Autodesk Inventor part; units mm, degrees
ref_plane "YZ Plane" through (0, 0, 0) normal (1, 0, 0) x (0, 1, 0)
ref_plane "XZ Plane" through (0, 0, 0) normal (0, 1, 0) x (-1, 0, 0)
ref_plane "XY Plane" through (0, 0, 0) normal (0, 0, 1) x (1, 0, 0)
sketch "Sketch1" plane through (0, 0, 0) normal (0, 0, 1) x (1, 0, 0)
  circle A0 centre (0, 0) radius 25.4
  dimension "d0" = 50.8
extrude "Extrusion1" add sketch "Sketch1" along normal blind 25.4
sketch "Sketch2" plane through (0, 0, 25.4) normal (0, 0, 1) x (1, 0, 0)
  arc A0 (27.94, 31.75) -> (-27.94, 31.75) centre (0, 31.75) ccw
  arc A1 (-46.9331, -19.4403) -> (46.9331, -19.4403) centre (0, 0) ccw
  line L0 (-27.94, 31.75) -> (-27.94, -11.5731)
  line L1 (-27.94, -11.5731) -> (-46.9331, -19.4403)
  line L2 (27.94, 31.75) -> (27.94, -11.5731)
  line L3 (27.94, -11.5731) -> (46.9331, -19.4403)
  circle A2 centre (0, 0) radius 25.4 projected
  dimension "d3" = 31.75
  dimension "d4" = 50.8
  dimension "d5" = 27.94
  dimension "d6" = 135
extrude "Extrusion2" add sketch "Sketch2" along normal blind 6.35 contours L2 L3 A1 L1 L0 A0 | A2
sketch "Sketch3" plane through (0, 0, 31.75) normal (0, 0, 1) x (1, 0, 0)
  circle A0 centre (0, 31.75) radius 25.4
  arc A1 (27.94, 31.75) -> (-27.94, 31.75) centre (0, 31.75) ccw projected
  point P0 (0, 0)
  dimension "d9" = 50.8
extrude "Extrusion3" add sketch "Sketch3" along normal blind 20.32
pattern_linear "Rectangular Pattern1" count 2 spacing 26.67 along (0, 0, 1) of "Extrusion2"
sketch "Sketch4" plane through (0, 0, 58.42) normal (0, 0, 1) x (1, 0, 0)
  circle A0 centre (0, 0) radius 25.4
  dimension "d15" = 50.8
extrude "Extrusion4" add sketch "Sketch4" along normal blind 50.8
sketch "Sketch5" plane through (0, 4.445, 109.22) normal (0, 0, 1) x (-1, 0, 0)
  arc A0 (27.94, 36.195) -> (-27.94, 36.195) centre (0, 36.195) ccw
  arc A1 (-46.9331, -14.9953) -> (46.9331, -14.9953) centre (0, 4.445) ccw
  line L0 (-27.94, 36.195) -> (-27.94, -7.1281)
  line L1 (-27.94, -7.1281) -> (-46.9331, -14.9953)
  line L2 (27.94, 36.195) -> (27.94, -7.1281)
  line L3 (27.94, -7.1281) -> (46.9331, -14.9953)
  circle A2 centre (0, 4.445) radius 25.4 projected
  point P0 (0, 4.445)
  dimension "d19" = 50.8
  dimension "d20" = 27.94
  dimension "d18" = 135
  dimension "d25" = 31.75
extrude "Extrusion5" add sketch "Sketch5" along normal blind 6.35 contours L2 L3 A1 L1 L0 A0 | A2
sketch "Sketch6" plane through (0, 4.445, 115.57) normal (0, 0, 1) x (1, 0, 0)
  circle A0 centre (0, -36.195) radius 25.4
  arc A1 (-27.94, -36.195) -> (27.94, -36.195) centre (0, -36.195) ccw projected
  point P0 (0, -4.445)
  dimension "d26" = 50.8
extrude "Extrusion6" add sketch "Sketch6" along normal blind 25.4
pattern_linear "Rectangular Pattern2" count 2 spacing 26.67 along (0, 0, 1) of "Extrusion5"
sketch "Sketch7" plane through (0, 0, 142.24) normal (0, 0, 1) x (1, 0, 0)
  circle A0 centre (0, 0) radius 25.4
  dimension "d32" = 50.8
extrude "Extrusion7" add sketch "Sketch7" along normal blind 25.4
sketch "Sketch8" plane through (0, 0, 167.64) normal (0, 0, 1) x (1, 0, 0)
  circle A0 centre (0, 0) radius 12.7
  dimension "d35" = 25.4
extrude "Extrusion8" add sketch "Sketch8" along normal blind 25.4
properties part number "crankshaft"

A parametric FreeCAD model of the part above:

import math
import FreeCAD as App
import Part
import Sketcher

V = App.Vector
Q = App.Units.Quantity

doc = App.newDocument("Part")
body = doc.addObject("PartDesign::Body", "Body")

sketch1 = body.newObject("Sketcher::SketchObject", "Sketch")
sketch1.AttachmentSupport = (doc.getObject("XY_Plane"), [""])
sketch1.MapMode = "FlatFace"
sketch1.addGeometry(Part.Circle(V(0, 0, 0), V(0, 0, 1), 25.4), False)
sketch1.addConstraint([
    Sketcher.Constraint("Coincident", 0, 3, -1, 1),
    Sketcher.Constraint("Diameter", 0, Q("2 in")),
])
pad1 = body.newObject("PartDesign::Pad", "Pad")
pad1.Profile = sketch1
pad1.Length = Q("1 in")

sketch2 = body.newObject("Sketcher::SketchObject", "Sketch001")
sketch2.AttachmentSupport = (doc.getObject("XY_Plane"), [""])
sketch2.MapMode = "FlatFace"
sketch2.AttachmentOffset = App.Placement(V(0, 0, 1 * 25.4), App.Rotation())
sketch2.addGeometry([
    Part.LineSegment(V(27.94, -11.5731, 0), V(27.94, 31.75, 0)),
    Part.ArcOfCircle(Part.Circle(V(0, 31.75, 0), V(0, 0, 1), 27.94), math.radians(0), math.radians(180)),
    Part.LineSegment(V(-27.94, 31.75, 0), V(-27.94, -11.5731, 0)),
    Part.LineSegment(V(-27.94, -11.5731, 0), V(-46.9331, -19.4403, 0)),
    Part.ArcOfCircle(Part.Circle(V(0, 0, 0), V(0, 0, 1), 50.800011), math.radians(-157.500028), math.radians(-22.499972)),
    Part.LineSegment(V(46.9331, -19.4403, 0), V(27.94, -11.5731, 0)),
], False)
sketch2.addConstraint([
    Sketcher.Constraint("Tangent", 0, 2, 1, 1),
    Sketcher.Constraint("Tangent", 1, 2, 2, 1),
    Sketcher.Constraint("Coincident", 2, 2, 3, 1),
    Sketcher.Constraint("Coincident", 3, 2, 4, 1),
    Sketcher.Constraint("Coincident", 4, 2, 5, 1),
    Sketcher.Constraint("Coincident", 5, 2, 0, 1),
    Sketcher.Constraint("Vertical", 0),
    Sketcher.Constraint("Vertical", 2),
    Sketcher.Constraint("Coincident", 4, 3, -1, 1),
    Sketcher.Constraint("Symmetric", 2, 2, 5, 2, -2),
    Sketcher.Constraint("Horizontal", 3, 2, 4, 2),
    Sketcher.Constraint("Radius", 4, Q("2 in")),
    Sketcher.Constraint("Radius", 1, Q("1.1 in")),
    Sketcher.Constraint("DistanceY", -1, 1, 1, 3, Q("1.25 in")),
    Sketcher.Constraint("Angle", 3, Q("-157.5 deg")),
    Sketcher.Constraint("DistanceY", 0, 1, 0, 2, Q("43.323 mm")),
])
pad2 = body.newObject("PartDesign::Pad", "Pad001")
pad2.Profile = sketch2
pad2.Length = Q("0.25 in")

sketch3 = body.newObject("Sketcher::SketchObject", "Sketch002")
sketch3.AttachmentSupport = (doc.getObject("XY_Plane"), [""])
sketch3.MapMode = "FlatFace"
sketch3.AttachmentOffset = App.Placement(V(0, 0, 1.25 * 25.4), App.Rotation())
sketch3.addGeometry(Part.Circle(V(0, 31.75, 0), V(0, 0, 1), 25.4), False)
sketch3.addConstraint([
    Sketcher.Constraint("PointOnObject", 0, 3, -2),
    Sketcher.Constraint("Diameter", 0, Q("2 in")),
    Sketcher.Constraint("DistanceY", -1, 1, 0, 3, Q("1.25 in")),
])
pad3 = body.newObject("PartDesign::Pad", "Pad002")
pad3.Profile = sketch3
pad3.Length = Q("0.8 in")
doc.recompute()

linearpattern = body.newObject("PartDesign::LinearPattern", "LinearPattern")
linearpattern.Originals = [pad2]
linearpattern.Direction = (doc.getObject("Z_Axis"), [""])
linearpattern.Mode = "offset"
linearpattern.Offset = Q("1.05 in")
linearpattern.Occurrences = 2
body.Tip = linearpattern

sketch4 = body.newObject("Sketcher::SketchObject", "Sketch003")
sketch4.AttachmentSupport = (doc.getObject("XY_Plane"), [""])
sketch4.MapMode = "FlatFace"
sketch4.AttachmentOffset = App.Placement(V(0, 0, 2.3 * 25.4), App.Rotation())
sketch4.addGeometry(Part.Circle(V(0, 0, 0), V(0, 0, 1), 25.4), False)
sketch4.addConstraint([
    Sketcher.Constraint("Coincident", 0, 3, -1, 1),
    Sketcher.Constraint("Diameter", 0, Q("2 in")),
])
pad4 = body.newObject("PartDesign::Pad", "Pad003")
pad4.Profile = sketch4
pad4.Length = Q("2 in")

sketch5 = body.newObject("Sketcher::SketchObject", "Sketch004")
sketch5.AttachmentSupport = (doc.getObject("XY_Plane"), [""])
sketch5.MapMode = "FlatFace"
sketch5.AttachmentOffset = App.Placement(V(0, 0, 4.3 * 25.4), App.Rotation())
sketch5.addGeometry([
    Part.LineSegment(V(-27.94, 11.5731, 0), V(-27.94, -31.75, 0)),
    Part.ArcOfCircle(Part.Circle(V(0, -31.75, 0), V(0, 0, 1), 27.94), math.radians(180), math.radians(360)),
    Part.LineSegment(V(27.94, -31.75, 0), V(27.94, 11.5731, 0)),
    Part.LineSegment(V(27.94, 11.5731, 0), V(46.9331, 19.4403, 0)),
    Part.ArcOfCircle(Part.Circle(V(0, 0, 0), V(0, 0, 1), 50.800011), math.radians(22.499972), math.radians(157.500028)),
    Part.LineSegment(V(-46.9331, 19.4403, 0), V(-27.94, 11.5731, 0)),
], False)
sketch5.addConstraint([
    Sketcher.Constraint("Tangent", 0, 2, 1, 1),
    Sketcher.Constraint("Tangent", 1, 2, 2, 1),
    Sketcher.Constraint("Coincident", 2, 2, 3, 1),
    Sketcher.Constraint("Coincident", 3, 2, 4, 1),
    Sketcher.Constraint("Coincident", 4, 2, 5, 1),
    Sketcher.Constraint("Coincident", 5, 2, 0, 1),
    Sketcher.Constraint("Vertical", 0),
    Sketcher.Constraint("Vertical", 2),
    Sketcher.Constraint("Coincident", 4, 3, -1, 1),
    Sketcher.Constraint("Symmetric", 2, 2, 5, 2, -2),
    Sketcher.Constraint("Horizontal", 3, 2, 4, 2),
    Sketcher.Constraint("Radius", 4, Q("2 in")),
    Sketcher.Constraint("Radius", 1, Q("1.1 in")),
    Sketcher.Constraint("DistanceY", 1, 3, -1, 1, Q("1.25 in")),
    Sketcher.Constraint("Angle", 3, Q("22.5 deg")),
    Sketcher.Constraint("DistanceY", 0, 2, 0, 1, Q("43.323 mm")),
])
pad5 = body.newObject("PartDesign::Pad", "Pad004")
pad5.Profile = sketch5
pad5.Length = Q("0.25 in")

sketch6 = body.newObject("Sketcher::SketchObject", "Sketch005")
sketch6.AttachmentSupport = (doc.getObject("XY_Plane"), [""])
sketch6.MapMode = "FlatFace"
sketch6.AttachmentOffset = App.Placement(V(0, 0, 4.55 * 25.4), App.Rotation())
sketch6.addGeometry(Part.Circle(V(0, -31.75, 0), V(0, 0, 1), 25.4), False)
sketch6.addConstraint([
    Sketcher.Constraint("PointOnObject", 0, 3, -2),
    Sketcher.Constraint("Diameter", 0, Q("2 in")),
    Sketcher.Constraint("DistanceY", 0, 3, -1, 1, Q("1.25 in")),
])
pad6 = body.newObject("PartDesign::Pad", "Pad005")
pad6.Profile = sketch6
pad6.Length = Q("1 in")
doc.recompute()

linearpattern2 = body.newObject("PartDesign::LinearPattern", "LinearPattern001")
linearpattern2.Originals = [pad5]
linearpattern2.Direction = (doc.getObject("Z_Axis"), [""])
linearpattern2.Mode = "offset"
linearpattern2.Offset = Q("1.05 in")
linearpattern2.Occurrences = 2
body.Tip = linearpattern2

sketch7 = body.newObject("Sketcher::SketchObject", "Sketch006")
sketch7.AttachmentSupport = (doc.getObject("XY_Plane"), [""])
sketch7.MapMode = "FlatFace"
sketch7.AttachmentOffset = App.Placement(V(0, 0, 5.6 * 25.4), App.Rotation())
sketch7.addGeometry(Part.Circle(V(0, 0, 0), V(0, 0, 1), 25.4), False)
sketch7.addConstraint([
    Sketcher.Constraint("Coincident", 0, 3, -1, 1),
    Sketcher.Constraint("Diameter", 0, Q("2 in")),
])
pad7 = body.newObject("PartDesign::Pad", "Pad006")
pad7.Profile = sketch7
pad7.Length = Q("1 in")

sketch8 = body.newObject("Sketcher::SketchObject", "Sketch007")
sketch8.AttachmentSupport = (doc.getObject("XY_Plane"), [""])
sketch8.MapMode = "FlatFace"
sketch8.AttachmentOffset = App.Placement(V(0, 0, 6.6 * 25.4), App.Rotation())
sketch8.addGeometry(Part.Circle(V(0, 0, 0), V(0, 0, 1), 12.7), False)
sketch8.addConstraint([
    Sketcher.Constraint("Coincident", 0, 3, -1, 1),
    Sketcher.Constraint("Diameter", 0, Q("1 in")),
])
pad8 = body.newObject("PartDesign::Pad", "Pad007")
pad8.Profile = sketch8
pad8.Length = Q("1 in")

doc.recompute()
